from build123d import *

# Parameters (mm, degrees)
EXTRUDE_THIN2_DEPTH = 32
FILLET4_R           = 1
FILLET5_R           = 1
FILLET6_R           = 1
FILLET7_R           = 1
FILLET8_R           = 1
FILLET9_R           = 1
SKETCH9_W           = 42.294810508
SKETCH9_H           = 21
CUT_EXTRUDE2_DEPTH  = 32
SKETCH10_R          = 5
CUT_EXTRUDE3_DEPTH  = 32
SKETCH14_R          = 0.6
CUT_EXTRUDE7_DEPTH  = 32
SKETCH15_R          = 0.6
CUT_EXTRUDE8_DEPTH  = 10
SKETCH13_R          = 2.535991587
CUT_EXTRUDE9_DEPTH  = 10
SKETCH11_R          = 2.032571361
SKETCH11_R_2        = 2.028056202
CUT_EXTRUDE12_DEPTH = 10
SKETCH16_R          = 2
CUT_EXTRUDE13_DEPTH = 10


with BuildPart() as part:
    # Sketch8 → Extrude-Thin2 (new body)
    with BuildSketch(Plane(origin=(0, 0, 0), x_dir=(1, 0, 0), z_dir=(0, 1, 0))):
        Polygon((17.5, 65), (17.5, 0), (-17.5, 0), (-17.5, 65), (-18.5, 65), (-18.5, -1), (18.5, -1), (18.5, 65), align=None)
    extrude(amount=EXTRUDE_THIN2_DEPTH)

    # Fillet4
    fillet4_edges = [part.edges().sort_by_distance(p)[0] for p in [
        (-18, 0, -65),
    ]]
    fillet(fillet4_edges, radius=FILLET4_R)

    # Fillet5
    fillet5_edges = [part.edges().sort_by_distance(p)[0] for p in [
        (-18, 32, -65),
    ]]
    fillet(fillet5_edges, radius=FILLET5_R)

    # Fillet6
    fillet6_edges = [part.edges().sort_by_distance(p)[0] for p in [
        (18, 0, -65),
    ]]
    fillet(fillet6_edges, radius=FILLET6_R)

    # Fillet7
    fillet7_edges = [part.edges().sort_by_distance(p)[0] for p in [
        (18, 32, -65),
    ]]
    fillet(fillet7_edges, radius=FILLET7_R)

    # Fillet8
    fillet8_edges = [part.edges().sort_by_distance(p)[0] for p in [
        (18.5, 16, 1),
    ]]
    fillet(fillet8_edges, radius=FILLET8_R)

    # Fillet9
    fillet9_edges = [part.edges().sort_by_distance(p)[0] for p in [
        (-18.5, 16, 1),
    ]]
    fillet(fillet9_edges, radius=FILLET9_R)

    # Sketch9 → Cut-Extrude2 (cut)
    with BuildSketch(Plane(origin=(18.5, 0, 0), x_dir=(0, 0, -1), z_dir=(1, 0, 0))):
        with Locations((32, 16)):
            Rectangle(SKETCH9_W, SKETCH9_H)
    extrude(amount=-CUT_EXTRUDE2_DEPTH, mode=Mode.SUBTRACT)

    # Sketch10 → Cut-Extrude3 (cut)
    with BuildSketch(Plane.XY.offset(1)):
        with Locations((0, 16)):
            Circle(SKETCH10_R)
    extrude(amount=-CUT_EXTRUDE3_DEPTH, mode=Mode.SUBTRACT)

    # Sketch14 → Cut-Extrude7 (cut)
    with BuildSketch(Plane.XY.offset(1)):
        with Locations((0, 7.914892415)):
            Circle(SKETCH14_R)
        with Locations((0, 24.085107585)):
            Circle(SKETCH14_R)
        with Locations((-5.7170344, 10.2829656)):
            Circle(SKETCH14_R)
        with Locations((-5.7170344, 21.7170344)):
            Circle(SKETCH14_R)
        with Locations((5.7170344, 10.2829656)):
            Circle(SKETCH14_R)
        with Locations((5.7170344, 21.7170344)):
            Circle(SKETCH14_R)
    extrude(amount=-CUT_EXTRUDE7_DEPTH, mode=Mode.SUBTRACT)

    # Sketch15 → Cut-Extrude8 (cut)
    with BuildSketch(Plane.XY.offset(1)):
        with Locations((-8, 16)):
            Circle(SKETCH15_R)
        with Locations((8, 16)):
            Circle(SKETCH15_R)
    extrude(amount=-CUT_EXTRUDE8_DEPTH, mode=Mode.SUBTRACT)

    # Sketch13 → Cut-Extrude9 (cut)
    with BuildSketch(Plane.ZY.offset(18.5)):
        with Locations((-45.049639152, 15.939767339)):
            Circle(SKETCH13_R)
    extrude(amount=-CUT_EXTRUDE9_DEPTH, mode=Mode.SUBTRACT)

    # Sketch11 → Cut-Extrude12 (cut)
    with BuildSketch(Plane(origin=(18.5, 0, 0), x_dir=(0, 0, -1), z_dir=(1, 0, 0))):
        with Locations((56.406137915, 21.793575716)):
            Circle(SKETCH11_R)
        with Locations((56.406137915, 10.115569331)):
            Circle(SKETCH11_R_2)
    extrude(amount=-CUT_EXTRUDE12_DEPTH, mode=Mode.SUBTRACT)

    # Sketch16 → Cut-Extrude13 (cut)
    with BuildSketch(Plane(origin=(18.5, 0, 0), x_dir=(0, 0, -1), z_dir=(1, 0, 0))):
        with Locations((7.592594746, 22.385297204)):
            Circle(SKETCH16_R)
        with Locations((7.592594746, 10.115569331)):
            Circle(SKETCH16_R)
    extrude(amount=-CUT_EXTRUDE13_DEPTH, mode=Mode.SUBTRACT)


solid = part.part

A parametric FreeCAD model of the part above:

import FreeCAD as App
import Part
import Sketcher

V = App.Vector


def edges_at(feature, points):
    """Names of the edges that pass closest to the given points."""
    edges = feature.Shape.Edges
    near = lambda p: min(range(len(edges)), key=lambda i: edges[i].distToShape(Part.Vertex(*p))[0])
    return sorted({f"Edge{near(p) + 1}" for p in points})


def add_polygon(sketch, points):
    """Adds a closed chain of lines whose ends are joined by coincident constraints."""
    first, n = sketch.GeometryCount, len(points)
    for a, b in zip(points, points[1:] + points[:1]):
        sketch.addGeometry(Part.LineSegment(App.Vector(*a, 0), App.Vector(*b, 0)), False)
    for i in range(n):
        sketch.addConstraint(Sketcher.Constraint("Coincident", first + i, 2, first + (i + 1) % n, 1))

doc = App.newDocument("Part")
params = doc.addObject("Spreadsheet::Sheet", "Params")
for row, (alias, value) in enumerate([
    ("sketch1_width", "35 mm"),
    ("sketch1_width2", "1 mm"),
    ("sketch1_height", "65 mm"),
    ("sketch1_height2", "66 mm"),
    ("pad1_length", "32 mm"),
    ("fillet_radius", "1 mm"),
    ("fillet2_radius", "1 mm"),
    ("fillet3_radius", "1 mm"),
    ("fillet4_radius", "1 mm"),
    ("fillet5_radius", "1 mm"),
    ("fillet6_radius", "1 mm"),
    ("sketch2_width", "21 mm"),
    ("pocket1_length", "32 mm"),
    ("sketch3_diameter", "10 mm"),
    ("pocket2_length", "32 mm"),
    ("sketch4_diameter", "1.2 mm"),
    ("pocket3_length", "32 mm"),
    ("sketch5_diameter", "1.2 mm"),
    ("pocket4_length", "10 mm"),
    ("pocket5_length", "10 mm"),
    ("pocket6_length", "10 mm"),
    ("sketch8_diameter", "4 mm"),
    ("pocket7_length", "10 mm"),
], start=1):
    params.set(f"A{row}", alias)
    params.set(f"B{row}", "=" + value)
    params.setAlias(f"B{row}", alias)

body = doc.addObject("PartDesign::Body", "Body")

# Sketch on XZ plane
sketch1 = body.newObject("Sketcher::SketchObject", "Sketch")
sketch1.AttachmentSupport = (doc.getObject("XZ_Plane"), [""])
sketch1.MapMode = "FlatFace"
add_polygon(sketch1, [(17.5, -65), (17.5, 0), (-17.5, 0), (-17.5, -65), (-18.5, -65), (-18.5, 1), (18.5, 1), (18.5, -65)])  # lines 0-7
sketch1.addConstraint([
    Sketcher.Constraint("Vertical", 0),
    Sketcher.Constraint("Horizontal", 1),
    Sketcher.Constraint("Vertical", 2),
    Sketcher.Constraint("Horizontal", 3),
    Sketcher.Constraint("Vertical", 4),
    Sketcher.Constraint("Horizontal", 5),
    Sketcher.Constraint("Vertical", 6),
    Sketcher.Constraint("Horizontal", 7),
    Sketcher.Constraint("Symmetric", 0, 2, 1, 2, -1, 1),
    Sketcher.Constraint("Symmetric", 3, 2, 6, 2, -2),
    Sketcher.Constraint("DistanceX", 1, 2, 1, 1, 35.0),
    Sketcher.Constraint("DistanceX", 3, 2, 3, 1, 1.0),
    Sketcher.Constraint("DistanceY", 0, 1, 0, 2, 65.0),
    Sketcher.Constraint("DistanceY", 4, 1, 4, 2, 66.0),
])
sketch1.setExpression("Constraints[18]", "Params.sketch1_width")
sketch1.setExpression("Constraints[19]", "Params.sketch1_width2")
sketch1.setExpression("Constraints[20]", "Params.sketch1_height")
sketch1.setExpression("Constraints[21]", "Params.sketch1_height2")
pad1 = body.newObject("PartDesign::Pad", "Pad")
pad1.Profile = sketch1
pad1.setExpression("Length", "Params.pad1_length")
pad1.Reversed = True
doc.recompute()

fillet = body.newObject("PartDesign::Fillet", "Fillet")
fillet.Base = (pad1, edges_at(pad1, [(-18, 0, -65)]))
fillet.setExpression("Radius", "Params.fillet_radius")
doc.recompute()

fillet2 = body.newObject("PartDesign::Fillet", "Fillet001")
fillet2.Base = (fillet, edges_at(fillet, [(-18, 32, -65)]))
fillet2.setExpression("Radius", "Params.fillet2_radius")
doc.recompute()

fillet3 = body.newObject("PartDesign::Fillet", "Fillet002")
fillet3.Base = (fillet2, edges_at(fillet2, [(18, 0, -65)]))
fillet3.setExpression("Radius", "Params.fillet3_radius")
doc.recompute()

fillet4 = body.newObject("PartDesign::Fillet", "Fillet003")
fillet4.Base = (fillet3, edges_at(fillet3, [(18, 32, -65)]))
fillet4.setExpression("Radius", "Params.fillet4_radius")
doc.recompute()

fillet5 = body.newObject("PartDesign::Fillet", "Fillet004")
fillet5.Base = (fillet4, edges_at(fillet4, [(18.5, 16, 1)]))
fillet5.setExpression("Radius", "Params.fillet5_radius")
doc.recompute()

fillet6 = body.newObject("PartDesign::Fillet", "Fillet005")
fillet6.Base = (fillet5, edges_at(fillet5, [(-18.5, 16, 1)]))
fillet6.setExpression("Radius", "Params.fillet6_radius")

# Sketch on YZ plane
sketch2 = body.newObject("Sketcher::SketchObject", "Sketch001")
sketch2.AttachmentSupport = (doc.getObject("YZ_Plane"), [""])
sketch2.MapMode = "FlatFace"
sketch2.AttachmentOffset = App.Placement(V(0, 0, 18.5), App.Rotation())
add_polygon(sketch2, [(26.5, -10.852595), (5.5, -10.852595), (5.5, -53.147405), (26.5, -53.147405)])  # lines 0-3
sketch2.addConstraint([
    Sketcher.Constraint("Horizontal", 0),
    Sketcher.Constraint("Vertical", 1),
    Sketcher.Constraint("Horizontal", 2),
    Sketcher.Constraint("Vertical", 3),
    Sketcher.Constraint("DistanceX", 0, 2, 0, 1, 21.0),
    Sketcher.Constraint("DistanceX", -1, 1, 0, 2, 5.5),
    Sketcher.Constraint("DistanceY", 1, 2, 1, 1, 42.294811),
    Sketcher.Constraint("DistanceY", 0, 2, -1, 1, 10.852595),
])
sketch2.setExpression("Constraints[8]", "Params.sketch2_width")
pocket1 = body.newObject("PartDesign::Pocket", "Pocket")
pocket1.Profile = sketch2
pocket1.setExpression("Length", "Params.pocket1_length")

# Sketch on XY plane
sketch3 = body.newObject("Sketcher::SketchObject", "Sketch002")
sketch3.AttachmentSupport = (doc.getObject("XY_Plane"), [""])
sketch3.MapMode = "FlatFace"
sketch3.AttachmentOffset = App.Placement(V(0, 0, 1), App.Rotation())
sketch3.addGeometry(Part.Circle(V(0, 16, 0), V(0, 0, 1), 5), False)
sketch3.addConstraint([
    Sketcher.Constraint("PointOnObject", 0, 3, -2),
    Sketcher.Constraint("Diameter", 0, 10.0),
    Sketcher.Constraint("DistanceY", -1, 1, 0, 3, 16.0),
])
sketch3.setExpression("Constraints[1]", "Params.sketch3_diameter")
pocket2 = body.newObject("PartDesign::Pocket", "Pocket001")
pocket2.Profile = sketch3
pocket2.setExpression("Length", "Params.pocket2_length")

# Sketch on XY plane
sketch4 = body.newObject("Sketcher::SketchObject", "Sketch003")
sketch4.AttachmentSupport = (doc.getObject("XY_Plane"), [""])
sketch4.MapMode = "FlatFace"
sketch4.AttachmentOffset = App.Placement(V(0, 0, 1), App.Rotation())
sketch4.addGeometry([
    Part.Circle(V(0, 7.914892, 0), V(0, 0, 1), 0.6),  # 0
    Part.Circle(V(0, 24.085108, 0), V(0, 0, 1), 0.6),  # 1
    Part.Circle(V(-5.717034, 10.282966, 0), V(0, 0, 1), 0.6),  # 2
    Part.Circle(V(-5.717034, 21.717034, 0), V(0, 0, 1), 0.6),  # 3
    Part.Circle(V(5.717034, 10.282966, 0), V(0, 0, 1), 0.6),  # 4
    Part.Circle(V(5.717034, 21.717034, 0), V(0, 0, 1), 0.6),  # 5
], False)
sketch4.addConstraint([
    Sketcher.Constraint("Equal", 0, 1),
    Sketcher.Constraint("Equal", 1, 2),
    Sketcher.Constraint("Equal", 2, 3),
    Sketcher.Constraint("Equal", 3, 4),
    Sketcher.Constraint("Equal", 4, 5),
    Sketcher.Constraint("Symmetric", 2, 3, 4, 3, -2),
    Sketcher.Constraint("Symmetric", 3, 3, 5, 3, -2),
    Sketcher.Constraint("PointOnObject", 0, 3, -2),
    Sketcher.Constraint("PointOnObject", 1, 3, -2),
    Sketcher.Constraint("Vertical", 2, 3, 3, 3),
    Sketcher.Constraint("Diameter", 0, 1.2),
    Sketcher.Constraint("DistanceY", 2, 3, 1, 3, 13.802142),
    Sketcher.Constraint("DistanceY", 2, 3, 3, 3, 11.434069),
    Sketcher.Constraint("DistanceY", 0, 3, 3, 3, 13.802142),
    Sketcher.Constraint("DistanceX", 2, 3, 4, 3, 11.434069),
    Sketcher.Constraint("DistanceY", -1, 1, 0, 3, 7.914892),
])
sketch4.setExpression("Constraints[10]", "Params.sketch4_diameter")
pocket3 = body.newObject("PartDesign::Pocket", "Pocket002")
pocket3.Profile = sketch4
pocket3.setExpression("Length", "Params.pocket3_length")

# Sketch on XY plane
sketch5 = body.newObject("Sketcher::SketchObject", "Sketch004")
sketch5.AttachmentSupport = (doc.getObject("XY_Plane"), [""])
sketch5.MapMode = "FlatFace"
sketch5.AttachmentOffset = App.Placement(V(0, 0, 1), App.Rotation())
sketch5.addGeometry([
    Part.Circle(V(-8, 16, 0), V(0, 0, 1), 0.6),
    Part.Circle(V(8, 16, 0), V(0, 0, 1), 0.6),
], False)
sketch5.addConstraint([
    Sketcher.Constraint("Equal", 0, 1),
    Sketcher.Constraint("Symmetric", 0, 3, 1, 3, -2),
    Sketcher.Constraint("Diameter", 0, 1.2),
    Sketcher.Constraint("DistanceX", 0, 3, -1, 1, 8.0),
    Sketcher.Constraint("DistanceY", -1, 1, 0, 3, 16.0),
])
sketch5.setExpression("Constraints[2]", "Params.sketch5_diameter")
pocket4 = body.newObject("PartDesign::Pocket", "Pocket003")
pocket4.Profile = sketch5
pocket4.setExpression("Length", "Params.pocket4_length")

# Sketch on YZ plane
sketch6 = body.newObject("Sketcher::SketchObject", "Sketch005")
sketch6.AttachmentSupport = (doc.getObject("YZ_Plane"), [""])
sketch6.MapMode = "FlatFace"
sketch6.AttachmentOffset = App.Placement(V(0, 0, -18.5), App.Rotation())
sketch6.addGeometry(Part.Circle(V(15.939767, -45.049639, 0), V(0, 0, 1), 2.535992), False)
sketch6.addConstraint([
    Sketcher.Constraint("Diameter", 0, 5.071983),
    Sketcher.Constraint("DistanceY", 0, 3, -1, 1, 45.049639),
    Sketcher.Constraint("DistanceX", -1, 1, 0, 3, 15.939767),
])
pocket5 = body.newObject("PartDesign::Pocket", "Pocket004")
pocket5.Profile = sketch6
pocket5.setExpression("Length", "Params.pocket5_length")
pocket5.Reversed = True

# Sketch on YZ plane
sketch7 = body.newObject("Sketcher::SketchObject", "Sketch006")
sketch7.AttachmentSupport = (doc.getObject("YZ_Plane"), [""])
sketch7.MapMode = "FlatFace"
sketch7.AttachmentOffset = App.Placement(V(0, 0, 18.5), App.Rotation())
sketch7.addGeometry([
    Part.Circle(V(21.793576, -56.406138, 0), V(0, 0, 1), 2.032571),
    Part.Circle(V(10.115569, -56.406138, 0), V(0, 0, 1), 2.028056),
], False)
sketch7.addConstraint([
    Sketcher.Constraint("Horizontal", 0, 3, 1, 3),
    Sketcher.Constraint("Diameter", 0, 4.065143),
    Sketcher.Constraint("Diameter", 1, 4.056112),
    Sketcher.Constraint("DistanceX", -1, 1, 1, 3, 10.115569),
    Sketcher.Constraint("DistanceX", -1, 1, 0, 3, 21.793576),
    Sketcher.Constraint("DistanceY", 0, 3, -1, 1, 56.406138),
])
pocket6 = body.newObject("PartDesign::Pocket", "Pocket005")
pocket6.Profile = sketch7
pocket6.setExpression("Length", "Params.pocket6_length")

# Sketch on YZ plane
sketch8 = body.newObject("Sketcher::SketchObject", "Sketch007")
sketch8.AttachmentSupport = (doc.getObject("YZ_Plane"), [""])
sketch8.MapMode = "FlatFace"
sketch8.AttachmentOffset = App.Placement(V(0, 0, 18.5), App.Rotation())
sketch8.addGeometry([
    Part.Circle(V(22.385297, -7.592595, 0), V(0, 0, 1), 2),
    Part.Circle(V(10.115569, -7.592595, 0), V(0, 0, 1), 2),
], False)
sketch8.addConstraint([
    Sketcher.Constraint("Equal", 0, 1),
    Sketcher.Constraint("Horizontal", 0, 3, 1, 3),
    Sketcher.Constraint("Diameter", 0, 4.0),
    Sketcher.Constraint("DistanceX", -1, 1, 1, 3, 10.115569),
    Sketcher.Constraint("DistanceX", -1, 1, 0, 3, 22.385297),
    Sketcher.Constraint("DistanceY", 0, 3, -1, 1, 7.592595),
])
sketch8.setExpression("Constraints[2]", "Params.sketch8_diameter")
pocket7 = body.newObject("PartDesign::Pocket", "Pocket006")
pocket7.Profile = sketch8
pocket7.setExpression("Length", "Params.pocket7_length")

doc.recompute()
